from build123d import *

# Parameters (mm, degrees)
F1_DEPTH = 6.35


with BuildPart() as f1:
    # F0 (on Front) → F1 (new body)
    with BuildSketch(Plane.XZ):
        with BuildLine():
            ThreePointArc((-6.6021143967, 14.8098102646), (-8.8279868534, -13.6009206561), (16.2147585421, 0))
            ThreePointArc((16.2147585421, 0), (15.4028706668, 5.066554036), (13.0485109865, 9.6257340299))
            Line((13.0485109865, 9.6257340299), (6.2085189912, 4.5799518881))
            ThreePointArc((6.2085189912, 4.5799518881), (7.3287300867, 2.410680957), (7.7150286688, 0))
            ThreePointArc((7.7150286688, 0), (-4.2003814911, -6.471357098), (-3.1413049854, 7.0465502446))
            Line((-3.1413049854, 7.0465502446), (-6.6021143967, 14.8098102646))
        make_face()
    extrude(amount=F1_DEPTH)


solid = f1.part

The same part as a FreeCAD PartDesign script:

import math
import FreeCAD as App
import Part
import Sketcher

V = App.Vector

doc = App.newDocument("Part")
params = doc.addObject("Spreadsheet::Sheet", "Params")
for row, (alias, value) in enumerate([
    ("pad1_length", "0.25 in"),
], start=1):
    params.set(f"A{row}", alias)
    params.set(f"B{row}", "=" + value)
    params.setAlias(f"B{row}", alias)

body = doc.addObject("PartDesign::Body", "Body")

sketch1 = body.newObject("Sketcher::SketchObject", "Sketch")
sketch1.AttachmentSupport = (doc.getObject("XZ_Plane"), [""])
sketch1.MapMode = "FlatFace"
sketch1.addGeometry([
    Part.ArcOfCircle(Part.Circle(V(0, 0, 0), V(0, 0, 1), 16.2), math.radians(114), math.radians(360)),
    Part.ArcOfCircle(Part.Circle(V(0, 0, 0), V(0, 0, 1), 16.2), math.radians(0), math.radians(36)),
    Part.LineSegment(V(13, 9.6, 0), V(6.2, 4.6, 0)),
    Part.ArcOfCircle(Part.Circle(V(0, 0, 0), V(0, 0, 1), 7.7), math.radians(0), math.radians(36)),
    Part.ArcOfCircle(Part.Circle(V(0, 0, 0), V(0, 0, 1), 7.7), math.radians(114), math.radians(360)),
    Part.LineSegment(V(-3.1, 7, 0), V(-6.6, 14.8, 0)),
], False)
sketch1.addConstraint([
    Sketcher.Constraint("Tangent", 0, 2, 1, 1),
    Sketcher.Constraint("Coincident", 1, 2, 2, 1),
    Sketcher.Constraint("Coincident", 2, 2, 3, 2),
    Sketcher.Constraint("Tangent", 3, 1, 4, 2),
    Sketcher.Constraint("Coincident", 4, 1, 5, 1),
    Sketcher.Constraint("Coincident", 5, 2, 0, 1),
    Sketcher.Constraint("Coincident", 0, 3, -1, 1),
    Sketcher.Constraint("Coincident", 3, 3, -1, 1),
    Sketcher.Constraint("Equal", 0, 1),
    Sketcher.Constraint("Equal", 3, 4),
    Sketcher.Constraint("PointOnObject", 0, 2, -1),
    Sketcher.Constraint("PointOnObject", 3, 1, -1),
    Sketcher.Constraint("Radius", 0, 16.214759),
    Sketcher.Constraint("Radius", 3, 7.715029),
    Sketcher.Constraint("DistanceY", 2, 2, 4, 1, 2.466598),
    Sketcher.Constraint("DistanceX", -1, 1, 1, 2, 13.048511),
    Sketcher.Constraint("DistanceX", -1, 1, 2, 2, 6.208519),
    Sketcher.Constraint("DistanceY", -1, 1, 5, 2, 14.80981),
])
pad1 = body.newObject("PartDesign::Pad", "Pad")
pad1.Profile = sketch1
pad1.setExpression("Length", "Params.pad1_length")

doc.recompute()
